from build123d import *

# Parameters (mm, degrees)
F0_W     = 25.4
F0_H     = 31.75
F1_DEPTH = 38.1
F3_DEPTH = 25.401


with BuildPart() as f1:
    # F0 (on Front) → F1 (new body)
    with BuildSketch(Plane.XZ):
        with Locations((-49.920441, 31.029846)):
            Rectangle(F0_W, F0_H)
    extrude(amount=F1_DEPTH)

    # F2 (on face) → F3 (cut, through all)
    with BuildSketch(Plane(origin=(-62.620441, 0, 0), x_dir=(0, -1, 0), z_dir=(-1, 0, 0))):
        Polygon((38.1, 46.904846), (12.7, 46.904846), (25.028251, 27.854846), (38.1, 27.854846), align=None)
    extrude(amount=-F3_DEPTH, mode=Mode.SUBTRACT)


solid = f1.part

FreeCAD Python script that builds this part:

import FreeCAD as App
import Part
import Sketcher
from FreeCAD import Vector
Q = App.Units.Quantity


def add_polygon(sketch, points):
    """Adds a closed chain of lines whose ends are joined by coincident constraints."""
    first, n = sketch.GeometryCount, len(points)
    for a, b in zip(points, points[1:] + points[:1]):
        sketch.addGeometry(Part.LineSegment(App.Vector(*a, 0), App.Vector(*b, 0)), False)
    for i in range(n):
        sketch.addConstraint(Sketcher.Constraint("Coincident", first + i, 2, first + (i + 1) % n, 1))

doc = App.newDocument("Part")
body = doc.addObject("PartDesign::Body", "Body")

sketch1 = body.newObject("Sketcher::SketchObject", "Sketch")
sketch1.AttachmentSupport = (doc.getObject("XZ_Plane"), [""])
sketch1.MapMode = "FlatFace"
add_polygon(sketch1, [(-63, 47), (-63, 15), (-37, 15), (-37, 47)])
sketch1.addConstraint([
    Sketcher.Constraint("Vertical", 0),
    Sketcher.Constraint("Horizontal", 1),
    Sketcher.Constraint("Vertical", 2),
    Sketcher.Constraint("Horizontal", 3),
    Sketcher.Constraint("DistanceX", 1, 1, 1, 2, Q("1 in")),
    Sketcher.Constraint("DistanceY", 0, 2, 0, 1, Q("1.25 in")),
    Sketcher.Constraint("DistanceX", 0, 2, -1, 1, 62.620441),
    Sketcher.Constraint("DistanceY", -1, 1, 0, 2, 15.154846),
])
pad1 = body.newObject("PartDesign::Pad", "Pad")
pad1.Profile = sketch1
pad1.Length = Q("1.5 in")

sketch2 = body.newObject("Sketcher::SketchObject", "Sketch001")
sketch2.AttachmentSupport = (doc.getObject("YZ_Plane"), [""])
sketch2.MapMode = "FlatFace"
sketch2.AttachmentOffset = App.Placement(Vector(0, 0, -62.620441), App.Rotation())
add_polygon(sketch2, [(-38, 47), (-13, 47), (-25, 28), (-38, 28)])
sketch2.addConstraint([
    Sketcher.Constraint("Horizontal", 0),
    Sketcher.Constraint("Horizontal", 2),
    Sketcher.Constraint("Vertical", 3),
    Sketcher.Constraint("DistanceX", 0, 1, 0, 2, Q("1 in")),
    Sketcher.Constraint("DistanceY", 3, 1, 3, 2, Q("0.75 in")),
    Sketcher.Constraint("DistanceX", 0, 2, -1, 1, Q("0.5 in")),
    Sketcher.Constraint("DistanceX", 2, 2, 2, 1, 13.071749),
    Sketcher.Constraint("DistanceY", -1, 1, 0, 2, 46.904846),
])
pocket1 = body.newObject("PartDesign::Pocket", "Pocket")
pocket1.Profile = sketch2
pocket1.Type = "ThroughAll"
pocket1.Reversed = True

doc.recompute()
